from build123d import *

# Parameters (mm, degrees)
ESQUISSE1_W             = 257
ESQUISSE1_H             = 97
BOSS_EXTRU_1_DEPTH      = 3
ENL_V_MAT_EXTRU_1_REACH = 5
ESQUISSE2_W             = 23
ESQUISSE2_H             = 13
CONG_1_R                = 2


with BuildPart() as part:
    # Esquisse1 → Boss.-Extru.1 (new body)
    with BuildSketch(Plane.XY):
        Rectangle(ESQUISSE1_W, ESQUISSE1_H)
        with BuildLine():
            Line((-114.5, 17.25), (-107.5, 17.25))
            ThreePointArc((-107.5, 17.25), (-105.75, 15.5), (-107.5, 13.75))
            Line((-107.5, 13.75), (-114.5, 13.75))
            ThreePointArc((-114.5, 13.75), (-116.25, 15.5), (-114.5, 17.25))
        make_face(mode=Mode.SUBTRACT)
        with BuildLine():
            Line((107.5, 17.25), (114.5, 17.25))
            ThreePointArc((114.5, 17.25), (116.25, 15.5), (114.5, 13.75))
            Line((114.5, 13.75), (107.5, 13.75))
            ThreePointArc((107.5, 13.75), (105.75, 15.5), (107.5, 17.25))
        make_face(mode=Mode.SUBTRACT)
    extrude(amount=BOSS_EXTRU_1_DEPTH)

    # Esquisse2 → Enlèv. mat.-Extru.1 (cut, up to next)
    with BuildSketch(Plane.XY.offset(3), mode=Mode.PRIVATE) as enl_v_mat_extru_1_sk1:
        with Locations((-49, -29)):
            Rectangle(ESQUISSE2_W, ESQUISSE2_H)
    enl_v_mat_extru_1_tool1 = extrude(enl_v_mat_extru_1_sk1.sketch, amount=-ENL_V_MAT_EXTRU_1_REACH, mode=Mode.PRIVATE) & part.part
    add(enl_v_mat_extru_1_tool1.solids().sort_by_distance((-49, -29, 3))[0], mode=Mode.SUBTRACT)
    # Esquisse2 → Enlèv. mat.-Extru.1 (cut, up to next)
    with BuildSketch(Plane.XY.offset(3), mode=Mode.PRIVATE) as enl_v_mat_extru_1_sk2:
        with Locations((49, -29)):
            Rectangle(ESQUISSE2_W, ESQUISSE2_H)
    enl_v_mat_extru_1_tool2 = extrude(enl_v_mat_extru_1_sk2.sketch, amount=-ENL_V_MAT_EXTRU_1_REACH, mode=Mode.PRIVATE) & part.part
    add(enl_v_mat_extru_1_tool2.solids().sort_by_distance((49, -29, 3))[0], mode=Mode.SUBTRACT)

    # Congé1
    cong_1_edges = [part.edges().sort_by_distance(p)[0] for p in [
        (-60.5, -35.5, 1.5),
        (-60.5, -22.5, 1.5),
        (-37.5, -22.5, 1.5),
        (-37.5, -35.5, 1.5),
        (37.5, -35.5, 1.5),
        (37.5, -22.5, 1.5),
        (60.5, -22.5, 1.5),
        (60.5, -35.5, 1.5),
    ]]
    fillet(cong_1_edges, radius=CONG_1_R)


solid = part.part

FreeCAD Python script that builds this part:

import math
import FreeCAD as App
import Part
import Sketcher


def edges_at(feature, points):
    """Names of the edges that pass closest to the given points."""
    edges = feature.Shape.Edges
    near = lambda p: min(range(len(edges)), key=lambda i: edges[i].distToShape(Part.Vertex(*p))[0])
    return sorted({f"Edge{near(p) + 1}" for p in points})


def add_polygon(sketch, points):
    """Adds a closed chain of lines whose ends are joined by coincident constraints."""
    first, n = sketch.GeometryCount, len(points)
    for a, b in zip(points, points[1:] + points[:1]):
        sketch.addGeometry(Part.LineSegment(App.Vector(*a, 0), App.Vector(*b, 0)), False)
    for i in range(n):
        sketch.addConstraint(Sketcher.Constraint("Coincident", first + i, 2, first + (i + 1) % n, 1))

doc = App.newDocument("Part")
body = doc.addObject("PartDesign::Body", "Body")

# Sketch on XY plane
sketch1 = body.newObject("Sketcher::SketchObject", "Sketch")
sketch1.AttachmentSupport = (doc.getObject("XY_Plane"), [""])
sketch1.MapMode = "FlatFace"
add_polygon(sketch1, [(-128.5, 48.5), (-128.5, -48.5), (128.5, -48.5), (128.5, 48.5)])  # lines 0-3
sketch1.addGeometry(Part.ArcOfCircle(Part.Circle(App.Vector(-114.5, 15.5, 0), App.Vector(0, 0, 1), 1.8), math.radians(90), math.radians(270)), False)  # 4
sketch1.addGeometry(Part.LineSegment(App.Vector(-114.5, 17.2, 0), App.Vector(-107.5, 17.2, 0)), False)  # 5
sketch1.addGeometry(Part.ArcOfCircle(Part.Circle(App.Vector(-107.5, 15.5, 0), App.Vector(0, 0, 1), 1.8), math.radians(-90), math.radians(90)), False)  # 6
sketch1.addGeometry(Part.LineSegment(App.Vector(-107.5, 13.8, 0), App.Vector(-114.5, 13.8, 0)), False)  # 7
sketch1.addGeometry(Part.ArcOfCircle(Part.Circle(App.Vector(107.5, 15.5, 0), App.Vector(0, 0, 1), 1.8), math.radians(90), math.radians(270)), False)  # 8
sketch1.addGeometry(Part.LineSegment(App.Vector(107.5, 17.2, 0), App.Vector(114.5, 17.2, 0)), False)  # 9
sketch1.addGeometry(Part.ArcOfCircle(Part.Circle(App.Vector(114.5, 15.5, 0), App.Vector(0, 0, 1), 1.8), math.radians(-90), math.radians(90)), False)  # 10
sketch1.addGeometry(Part.LineSegment(App.Vector(114.5, 13.8, 0), App.Vector(107.5, 13.8, 0)), False)  # 11
sketch1.addConstraint(Sketcher.Constraint("Tangent", 4, 1, 5, 1))
sketch1.addConstraint(Sketcher.Constraint("Tangent", 5, 2, 6, 2))
sketch1.addConstraint(Sketcher.Constraint("Tangent", 6, 1, 7, 1))
sketch1.addConstraint(Sketcher.Constraint("Tangent", 7, 2, 4, 2))
sketch1.addConstraint(Sketcher.Constraint("Tangent", 8, 1, 9, 1))
sketch1.addConstraint(Sketcher.Constraint("Tangent", 9, 2, 10, 2))
sketch1.addConstraint(Sketcher.Constraint("Tangent", 10, 1, 11, 1))
sketch1.addConstraint(Sketcher.Constraint("Tangent", 11, 2, 8, 2))
sketch1.addConstraint(Sketcher.Constraint("Vertical", 0))
sketch1.addConstraint(Sketcher.Constraint("Horizontal", 1))
sketch1.addConstraint(Sketcher.Constraint("Vertical", 2))
sketch1.addConstraint(Sketcher.Constraint("Horizontal", 3))
sketch1.addConstraint(Sketcher.Constraint("Horizontal", 5))
sketch1.addConstraint(Sketcher.Constraint("Horizontal", 7))
sketch1.addConstraint(Sketcher.Constraint("Horizontal", 9))
sketch1.addConstraint(Sketcher.Constraint("Horizontal", 11))
sketch1.addConstraint(Sketcher.Constraint("Equal", 6, 8))
sketch1.addConstraint(Sketcher.Constraint("Symmetric", 0, 2, 2, 2, -1, 1))
sketch1.addConstraint(Sketcher.Constraint("Symmetric", 6, 3, 8, 3, -2))
sketch1.addConstraint(Sketcher.Constraint("Equal", 7, 9))
sketch1.addConstraint(Sketcher.Constraint("DistanceX", 1, 1, 1, 2, 257.0))
sketch1.addConstraint(Sketcher.Constraint("DistanceX", 5, 1, 5, 2, 7.0))
sketch1.addConstraint(Sketcher.Constraint("DistanceY", 0, 2, 0, 1, 97.0))
sketch1.addConstraint(Sketcher.Constraint("Radius", 4, 1.75))
sketch1.addConstraint(Sketcher.Constraint("DistanceX", 6, 3, 8, 3, 215.0))
sketch1.addConstraint(Sketcher.Constraint("DistanceY", 0, 2, 4, 3, 64.0))
pad1 = body.newObject("PartDesign::Pad", "Pad")
pad1.Profile = sketch1
pad1.Length = 3

# Sketch on XY plane
sketch2 = body.newObject("Sketcher::SketchObject", "Sketch001")
sketch2.AttachmentSupport = (doc.getObject("XY_Plane"), [""])
sketch2.MapMode = "FlatFace"
sketch2.AttachmentOffset = App.Placement(App.Vector(0, 0, 3), App.Rotation())
add_polygon(sketch2, [(-60, -22), (-60, -36), (-38, -36), (-38, -22)])  # lines 0-3
sketch2.addConstraint(Sketcher.Constraint("Vertical", 0))
sketch2.addConstraint(Sketcher.Constraint("Horizontal", 1))
sketch2.addConstraint(Sketcher.Constraint("Vertical", 2))
sketch2.addConstraint(Sketcher.Constraint("Horizontal", 3))
sketch2.addConstraint(Sketcher.Constraint("DistanceX", 1, 1, 1, 2, 23.0))
sketch2.addConstraint(Sketcher.Constraint("DistanceY", 0, 2, 0, 1, 13.0))
sketch2.addConstraint(Sketcher.Constraint("DistanceX", 0, 2, -1, 1, 60.5))
sketch2.addConstraint(Sketcher.Constraint("DistanceY", 0, 2, -1, 1, 35.5))
pocket1 = body.newObject("PartDesign::Pocket", "Pocket")
pocket1.Profile = sketch2
pocket1.Type = "UpToFirst"

# Sketch on XY plane
sketch3 = body.newObject("Sketcher::SketchObject", "Sketch002")
sketch3.AttachmentSupport = (doc.getObject("XY_Plane"), [""])
sketch3.MapMode = "FlatFace"
sketch3.AttachmentOffset = App.Placement(App.Vector(0, 0, 3), App.Rotation())
add_polygon(sketch3, [(38, -22), (38, -36), (60, -36), (60, -22)])  # lines 0-3
sketch3.addConstraint(Sketcher.Constraint("Vertical", 0))
sketch3.addConstraint(Sketcher.Constraint("Horizontal", 1))
sketch3.addConstraint(Sketcher.Constraint("Vertical", 2))
sketch3.addConstraint(Sketcher.Constraint("Horizontal", 3))
sketch3.addConstraint(Sketcher.Constraint("DistanceX", 1, 1, 1, 2, 23.0))
sketch3.addConstraint(Sketcher.Constraint("DistanceY", 0, 2, 0, 1, 13.0))
sketch3.addConstraint(Sketcher.Constraint("DistanceX", -1, 1, 0, 2, 37.5))
sketch3.addConstraint(Sketcher.Constraint("DistanceY", 0, 2, -1, 1, 35.5))
pocket2 = body.newObject("PartDesign::Pocket", "Pocket001")
pocket2.Profile = sketch3
pocket2.Type = "UpToFirst"
doc.recompute()

fillet = body.newObject("PartDesign::Fillet", "Fillet")
fillet.Base = (pocket2, edges_at(pocket2, [
    (-60.5, -35.5, 1.5),
    (-60.5, -22.5, 1.5),
    (-37.5, -22.5, 1.5),
    (-37.5, -35.5, 1.5),
    (37.5, -35.5, 1.5),
    (37.5, -22.5, 1.5),
    (60.5, -22.5, 1.5),
    (60.5, -35.5, 1.5),
]))
fillet.Radius = 2

doc.recompute()
